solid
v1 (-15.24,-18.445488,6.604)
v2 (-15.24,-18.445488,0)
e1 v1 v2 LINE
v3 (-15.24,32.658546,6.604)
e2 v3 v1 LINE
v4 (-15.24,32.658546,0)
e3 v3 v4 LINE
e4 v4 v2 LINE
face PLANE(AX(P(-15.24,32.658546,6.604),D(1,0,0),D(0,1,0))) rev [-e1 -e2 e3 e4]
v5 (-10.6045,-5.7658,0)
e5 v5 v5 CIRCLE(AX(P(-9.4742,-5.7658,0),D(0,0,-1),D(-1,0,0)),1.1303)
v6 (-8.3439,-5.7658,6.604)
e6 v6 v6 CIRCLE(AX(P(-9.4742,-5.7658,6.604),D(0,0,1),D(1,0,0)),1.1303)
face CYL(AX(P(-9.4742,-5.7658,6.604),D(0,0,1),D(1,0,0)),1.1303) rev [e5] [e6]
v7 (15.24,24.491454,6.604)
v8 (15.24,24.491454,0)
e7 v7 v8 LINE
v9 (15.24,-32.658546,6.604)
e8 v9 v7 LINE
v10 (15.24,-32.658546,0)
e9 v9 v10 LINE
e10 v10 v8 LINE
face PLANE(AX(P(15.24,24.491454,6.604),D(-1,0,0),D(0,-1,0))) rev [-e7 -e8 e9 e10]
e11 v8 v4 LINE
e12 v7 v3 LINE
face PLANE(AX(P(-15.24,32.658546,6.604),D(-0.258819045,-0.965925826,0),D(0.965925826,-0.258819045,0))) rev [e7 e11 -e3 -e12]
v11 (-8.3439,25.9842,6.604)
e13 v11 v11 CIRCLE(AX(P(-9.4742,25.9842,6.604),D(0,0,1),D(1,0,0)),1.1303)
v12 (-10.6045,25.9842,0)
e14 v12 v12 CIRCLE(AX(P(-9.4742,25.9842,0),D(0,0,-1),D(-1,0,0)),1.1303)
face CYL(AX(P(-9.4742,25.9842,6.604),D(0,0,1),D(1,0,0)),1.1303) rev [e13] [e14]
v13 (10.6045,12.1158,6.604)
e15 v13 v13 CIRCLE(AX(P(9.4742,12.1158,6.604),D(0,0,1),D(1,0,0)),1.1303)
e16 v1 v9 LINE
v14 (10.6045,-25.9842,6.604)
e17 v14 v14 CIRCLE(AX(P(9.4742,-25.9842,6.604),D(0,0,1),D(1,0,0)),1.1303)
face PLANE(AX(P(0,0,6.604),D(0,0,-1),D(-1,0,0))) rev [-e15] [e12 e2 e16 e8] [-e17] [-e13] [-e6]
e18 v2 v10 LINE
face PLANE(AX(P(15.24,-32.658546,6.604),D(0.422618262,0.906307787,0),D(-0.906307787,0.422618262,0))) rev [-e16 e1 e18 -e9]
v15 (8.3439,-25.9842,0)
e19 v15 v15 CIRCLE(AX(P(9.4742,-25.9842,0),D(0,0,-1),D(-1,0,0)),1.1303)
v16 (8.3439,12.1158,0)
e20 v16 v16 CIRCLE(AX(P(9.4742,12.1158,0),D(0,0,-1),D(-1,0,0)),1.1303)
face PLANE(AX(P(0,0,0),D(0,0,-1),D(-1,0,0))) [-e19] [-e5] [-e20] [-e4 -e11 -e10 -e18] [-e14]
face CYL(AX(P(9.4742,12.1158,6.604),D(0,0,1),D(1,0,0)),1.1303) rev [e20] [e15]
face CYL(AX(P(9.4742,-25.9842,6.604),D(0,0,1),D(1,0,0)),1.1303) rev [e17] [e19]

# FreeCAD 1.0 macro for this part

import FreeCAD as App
import Part
import Sketcher
Q = App.Units.Quantity

doc = App.newDocument("Part")
params = doc.addObject("Spreadsheet::Sheet", "Params")
for row, (alias, value) in enumerate([
    ("sketch1_height", "2.25 in"),
    ("pad1_length", "0.26 in"),
    ("sketch2_diameter", "0.089 in"),
    ("hole_diameter", "0.089 in"),
    ("hole_depth", "0.299 in"),
], start=1):
    params.set(f"A{row}", alias)
    params.set(f"B{row}", "=" + value)
    params.setAlias(f"B{row}", alias)

body = doc.addObject("PartDesign::Body", "Body")

sketch1 = body.newObject("Sketcher::SketchObject", "Sketch")
sketch1.AttachmentSupport = (doc.getObject("XY_Plane"), [""])
sketch1.MapMode = "FlatFace"
sketch1.addGeometry(Part.LineSegment(App.Vector(-15.24, -18.445488, 0), App.Vector(15.24, -32.658546, 0)), False)
sketch1.addGeometry(Part.LineSegment(App.Vector(15.24, -32.658546, 0), App.Vector(15.24, 24.491454, 0)), False)
sketch1.addGeometry(Part.LineSegment(App.Vector(15.24, 24.491454, 0), App.Vector(-15.24, 32.658546, 0)), False)
sketch1.addGeometry(Part.LineSegment(App.Vector(-15.24, 32.658546, 0), App.Vector(-15.24, -18.445488, 0)), False)
sketch1.addConstraint(Sketcher.Constraint("Coincident", 0, 2, 1, 1))
sketch1.addConstraint(Sketcher.Constraint("Coincident", 1, 2, 2, 1))
sketch1.addConstraint(Sketcher.Constraint("Coincident", 2, 2, 3, 1))
sketch1.addConstraint(Sketcher.Constraint("Coincident", 3, 2, 0, 1))
sketch1.addConstraint(Sketcher.Constraint("Vertical", 1))
sketch1.addConstraint(Sketcher.Constraint("Vertical", 3))
sketch1.addConstraint(Sketcher.Constraint("Symmetric", 0, 2, 2, 2, -1, 1))
sketch1.addConstraint(Sketcher.Constraint("Angle", 0, Q("-25 deg")))
sketch1.addConstraint(Sketcher.Constraint("Angle", 2, Q("165 deg")))
sketch1.addConstraint(Sketcher.Constraint("DistanceY", 1, 1, 1, 2, Q("2.25 in")))
sketch1.addConstraint(Sketcher.Constraint("DistanceX", -1, 1, 0, 2, Q("0.6 in")))
sketch1.setExpression("Constraints[9]", "Params.sketch1_height")
pad1 = body.newObject("PartDesign::Pad", "Pad")
pad1.Profile = sketch1
pad1.setExpression("Length", "Params.pad1_length")

sketch2 = body.newObject("Sketcher::SketchObject", "Sketch001")
sketch2.AttachmentSupport = (doc.getObject("XY_Plane"), [""])
sketch2.MapMode = "FlatFace"
sketch2.AttachmentOffset = App.Placement(App.Vector(0, 0, 0.26 * 25.4), App.Rotation())
sketch2.addGeometry(Part.Circle(App.Vector(-9.4742, 25.9842, 0), App.Vector(0, 0, 1), 1.1303), False)
sketch2.addGeometry(Part.Circle(App.Vector(9.4742, 12.1158, 0), App.Vector(0, 0, 1), 1.1303), False)
sketch2.addGeometry(Part.Circle(App.Vector(-9.4742, -5.7658, 0), App.Vector(0, 0, 1), 1.1303), False)
sketch2.addGeometry(Part.Circle(App.Vector(9.4742, -25.9842, 0), App.Vector(0, 0, 1), 1.1303), False)
sketch2.addConstraint(Sketcher.Constraint("Equal", 0, 1))
sketch2.addConstraint(Sketcher.Constraint("Equal", 1, 2))
sketch2.addConstraint(Sketcher.Constraint("Equal", 2, 3))
sketch2.addConstraint(Sketcher.Constraint("Symmetric", 0, 3, 3, 3, -1, 1))
sketch2.addConstraint(Sketcher.Constraint("Vertical", 0, 3, 2, 3))
sketch2.addConstraint(Sketcher.Constraint("Vertical", 1, 3, 3, 3))
sketch2.addConstraint(Sketcher.Constraint("Diameter", 0, Q("0.089 in")))
sketch2.addConstraint(Sketcher.Constraint("DistanceY", 3, 3, 1, 3, Q("1.5 in")))
sketch2.addConstraint(Sketcher.Constraint("DistanceY", 2, 3, 0, 3, Q("1.25 in")))
sketch2.addConstraint(Sketcher.Constraint("DistanceX", 0, 3, -1, 1, Q("0.373 in")))
sketch2.addConstraint(Sketcher.Constraint("DistanceY", -1, 1, 0, 3, Q("1.023 in")))
sketch2.setExpression("Constraints[6]", "Params.sketch2_diameter")
doc.recompute()
hole = body.newObject("PartDesign::Hole", "Hole")
hole.Profile = sketch2
hole.ThreadType = "None"
hole.setExpression("Diameter", "Params.hole_diameter")
hole.DepthType = "Dimension"
hole.setExpression("Depth", "Params.hole_depth")
hole.DrillPoint = "Angled"
hole.DrillPointAngle = 118

doc.recompute()
